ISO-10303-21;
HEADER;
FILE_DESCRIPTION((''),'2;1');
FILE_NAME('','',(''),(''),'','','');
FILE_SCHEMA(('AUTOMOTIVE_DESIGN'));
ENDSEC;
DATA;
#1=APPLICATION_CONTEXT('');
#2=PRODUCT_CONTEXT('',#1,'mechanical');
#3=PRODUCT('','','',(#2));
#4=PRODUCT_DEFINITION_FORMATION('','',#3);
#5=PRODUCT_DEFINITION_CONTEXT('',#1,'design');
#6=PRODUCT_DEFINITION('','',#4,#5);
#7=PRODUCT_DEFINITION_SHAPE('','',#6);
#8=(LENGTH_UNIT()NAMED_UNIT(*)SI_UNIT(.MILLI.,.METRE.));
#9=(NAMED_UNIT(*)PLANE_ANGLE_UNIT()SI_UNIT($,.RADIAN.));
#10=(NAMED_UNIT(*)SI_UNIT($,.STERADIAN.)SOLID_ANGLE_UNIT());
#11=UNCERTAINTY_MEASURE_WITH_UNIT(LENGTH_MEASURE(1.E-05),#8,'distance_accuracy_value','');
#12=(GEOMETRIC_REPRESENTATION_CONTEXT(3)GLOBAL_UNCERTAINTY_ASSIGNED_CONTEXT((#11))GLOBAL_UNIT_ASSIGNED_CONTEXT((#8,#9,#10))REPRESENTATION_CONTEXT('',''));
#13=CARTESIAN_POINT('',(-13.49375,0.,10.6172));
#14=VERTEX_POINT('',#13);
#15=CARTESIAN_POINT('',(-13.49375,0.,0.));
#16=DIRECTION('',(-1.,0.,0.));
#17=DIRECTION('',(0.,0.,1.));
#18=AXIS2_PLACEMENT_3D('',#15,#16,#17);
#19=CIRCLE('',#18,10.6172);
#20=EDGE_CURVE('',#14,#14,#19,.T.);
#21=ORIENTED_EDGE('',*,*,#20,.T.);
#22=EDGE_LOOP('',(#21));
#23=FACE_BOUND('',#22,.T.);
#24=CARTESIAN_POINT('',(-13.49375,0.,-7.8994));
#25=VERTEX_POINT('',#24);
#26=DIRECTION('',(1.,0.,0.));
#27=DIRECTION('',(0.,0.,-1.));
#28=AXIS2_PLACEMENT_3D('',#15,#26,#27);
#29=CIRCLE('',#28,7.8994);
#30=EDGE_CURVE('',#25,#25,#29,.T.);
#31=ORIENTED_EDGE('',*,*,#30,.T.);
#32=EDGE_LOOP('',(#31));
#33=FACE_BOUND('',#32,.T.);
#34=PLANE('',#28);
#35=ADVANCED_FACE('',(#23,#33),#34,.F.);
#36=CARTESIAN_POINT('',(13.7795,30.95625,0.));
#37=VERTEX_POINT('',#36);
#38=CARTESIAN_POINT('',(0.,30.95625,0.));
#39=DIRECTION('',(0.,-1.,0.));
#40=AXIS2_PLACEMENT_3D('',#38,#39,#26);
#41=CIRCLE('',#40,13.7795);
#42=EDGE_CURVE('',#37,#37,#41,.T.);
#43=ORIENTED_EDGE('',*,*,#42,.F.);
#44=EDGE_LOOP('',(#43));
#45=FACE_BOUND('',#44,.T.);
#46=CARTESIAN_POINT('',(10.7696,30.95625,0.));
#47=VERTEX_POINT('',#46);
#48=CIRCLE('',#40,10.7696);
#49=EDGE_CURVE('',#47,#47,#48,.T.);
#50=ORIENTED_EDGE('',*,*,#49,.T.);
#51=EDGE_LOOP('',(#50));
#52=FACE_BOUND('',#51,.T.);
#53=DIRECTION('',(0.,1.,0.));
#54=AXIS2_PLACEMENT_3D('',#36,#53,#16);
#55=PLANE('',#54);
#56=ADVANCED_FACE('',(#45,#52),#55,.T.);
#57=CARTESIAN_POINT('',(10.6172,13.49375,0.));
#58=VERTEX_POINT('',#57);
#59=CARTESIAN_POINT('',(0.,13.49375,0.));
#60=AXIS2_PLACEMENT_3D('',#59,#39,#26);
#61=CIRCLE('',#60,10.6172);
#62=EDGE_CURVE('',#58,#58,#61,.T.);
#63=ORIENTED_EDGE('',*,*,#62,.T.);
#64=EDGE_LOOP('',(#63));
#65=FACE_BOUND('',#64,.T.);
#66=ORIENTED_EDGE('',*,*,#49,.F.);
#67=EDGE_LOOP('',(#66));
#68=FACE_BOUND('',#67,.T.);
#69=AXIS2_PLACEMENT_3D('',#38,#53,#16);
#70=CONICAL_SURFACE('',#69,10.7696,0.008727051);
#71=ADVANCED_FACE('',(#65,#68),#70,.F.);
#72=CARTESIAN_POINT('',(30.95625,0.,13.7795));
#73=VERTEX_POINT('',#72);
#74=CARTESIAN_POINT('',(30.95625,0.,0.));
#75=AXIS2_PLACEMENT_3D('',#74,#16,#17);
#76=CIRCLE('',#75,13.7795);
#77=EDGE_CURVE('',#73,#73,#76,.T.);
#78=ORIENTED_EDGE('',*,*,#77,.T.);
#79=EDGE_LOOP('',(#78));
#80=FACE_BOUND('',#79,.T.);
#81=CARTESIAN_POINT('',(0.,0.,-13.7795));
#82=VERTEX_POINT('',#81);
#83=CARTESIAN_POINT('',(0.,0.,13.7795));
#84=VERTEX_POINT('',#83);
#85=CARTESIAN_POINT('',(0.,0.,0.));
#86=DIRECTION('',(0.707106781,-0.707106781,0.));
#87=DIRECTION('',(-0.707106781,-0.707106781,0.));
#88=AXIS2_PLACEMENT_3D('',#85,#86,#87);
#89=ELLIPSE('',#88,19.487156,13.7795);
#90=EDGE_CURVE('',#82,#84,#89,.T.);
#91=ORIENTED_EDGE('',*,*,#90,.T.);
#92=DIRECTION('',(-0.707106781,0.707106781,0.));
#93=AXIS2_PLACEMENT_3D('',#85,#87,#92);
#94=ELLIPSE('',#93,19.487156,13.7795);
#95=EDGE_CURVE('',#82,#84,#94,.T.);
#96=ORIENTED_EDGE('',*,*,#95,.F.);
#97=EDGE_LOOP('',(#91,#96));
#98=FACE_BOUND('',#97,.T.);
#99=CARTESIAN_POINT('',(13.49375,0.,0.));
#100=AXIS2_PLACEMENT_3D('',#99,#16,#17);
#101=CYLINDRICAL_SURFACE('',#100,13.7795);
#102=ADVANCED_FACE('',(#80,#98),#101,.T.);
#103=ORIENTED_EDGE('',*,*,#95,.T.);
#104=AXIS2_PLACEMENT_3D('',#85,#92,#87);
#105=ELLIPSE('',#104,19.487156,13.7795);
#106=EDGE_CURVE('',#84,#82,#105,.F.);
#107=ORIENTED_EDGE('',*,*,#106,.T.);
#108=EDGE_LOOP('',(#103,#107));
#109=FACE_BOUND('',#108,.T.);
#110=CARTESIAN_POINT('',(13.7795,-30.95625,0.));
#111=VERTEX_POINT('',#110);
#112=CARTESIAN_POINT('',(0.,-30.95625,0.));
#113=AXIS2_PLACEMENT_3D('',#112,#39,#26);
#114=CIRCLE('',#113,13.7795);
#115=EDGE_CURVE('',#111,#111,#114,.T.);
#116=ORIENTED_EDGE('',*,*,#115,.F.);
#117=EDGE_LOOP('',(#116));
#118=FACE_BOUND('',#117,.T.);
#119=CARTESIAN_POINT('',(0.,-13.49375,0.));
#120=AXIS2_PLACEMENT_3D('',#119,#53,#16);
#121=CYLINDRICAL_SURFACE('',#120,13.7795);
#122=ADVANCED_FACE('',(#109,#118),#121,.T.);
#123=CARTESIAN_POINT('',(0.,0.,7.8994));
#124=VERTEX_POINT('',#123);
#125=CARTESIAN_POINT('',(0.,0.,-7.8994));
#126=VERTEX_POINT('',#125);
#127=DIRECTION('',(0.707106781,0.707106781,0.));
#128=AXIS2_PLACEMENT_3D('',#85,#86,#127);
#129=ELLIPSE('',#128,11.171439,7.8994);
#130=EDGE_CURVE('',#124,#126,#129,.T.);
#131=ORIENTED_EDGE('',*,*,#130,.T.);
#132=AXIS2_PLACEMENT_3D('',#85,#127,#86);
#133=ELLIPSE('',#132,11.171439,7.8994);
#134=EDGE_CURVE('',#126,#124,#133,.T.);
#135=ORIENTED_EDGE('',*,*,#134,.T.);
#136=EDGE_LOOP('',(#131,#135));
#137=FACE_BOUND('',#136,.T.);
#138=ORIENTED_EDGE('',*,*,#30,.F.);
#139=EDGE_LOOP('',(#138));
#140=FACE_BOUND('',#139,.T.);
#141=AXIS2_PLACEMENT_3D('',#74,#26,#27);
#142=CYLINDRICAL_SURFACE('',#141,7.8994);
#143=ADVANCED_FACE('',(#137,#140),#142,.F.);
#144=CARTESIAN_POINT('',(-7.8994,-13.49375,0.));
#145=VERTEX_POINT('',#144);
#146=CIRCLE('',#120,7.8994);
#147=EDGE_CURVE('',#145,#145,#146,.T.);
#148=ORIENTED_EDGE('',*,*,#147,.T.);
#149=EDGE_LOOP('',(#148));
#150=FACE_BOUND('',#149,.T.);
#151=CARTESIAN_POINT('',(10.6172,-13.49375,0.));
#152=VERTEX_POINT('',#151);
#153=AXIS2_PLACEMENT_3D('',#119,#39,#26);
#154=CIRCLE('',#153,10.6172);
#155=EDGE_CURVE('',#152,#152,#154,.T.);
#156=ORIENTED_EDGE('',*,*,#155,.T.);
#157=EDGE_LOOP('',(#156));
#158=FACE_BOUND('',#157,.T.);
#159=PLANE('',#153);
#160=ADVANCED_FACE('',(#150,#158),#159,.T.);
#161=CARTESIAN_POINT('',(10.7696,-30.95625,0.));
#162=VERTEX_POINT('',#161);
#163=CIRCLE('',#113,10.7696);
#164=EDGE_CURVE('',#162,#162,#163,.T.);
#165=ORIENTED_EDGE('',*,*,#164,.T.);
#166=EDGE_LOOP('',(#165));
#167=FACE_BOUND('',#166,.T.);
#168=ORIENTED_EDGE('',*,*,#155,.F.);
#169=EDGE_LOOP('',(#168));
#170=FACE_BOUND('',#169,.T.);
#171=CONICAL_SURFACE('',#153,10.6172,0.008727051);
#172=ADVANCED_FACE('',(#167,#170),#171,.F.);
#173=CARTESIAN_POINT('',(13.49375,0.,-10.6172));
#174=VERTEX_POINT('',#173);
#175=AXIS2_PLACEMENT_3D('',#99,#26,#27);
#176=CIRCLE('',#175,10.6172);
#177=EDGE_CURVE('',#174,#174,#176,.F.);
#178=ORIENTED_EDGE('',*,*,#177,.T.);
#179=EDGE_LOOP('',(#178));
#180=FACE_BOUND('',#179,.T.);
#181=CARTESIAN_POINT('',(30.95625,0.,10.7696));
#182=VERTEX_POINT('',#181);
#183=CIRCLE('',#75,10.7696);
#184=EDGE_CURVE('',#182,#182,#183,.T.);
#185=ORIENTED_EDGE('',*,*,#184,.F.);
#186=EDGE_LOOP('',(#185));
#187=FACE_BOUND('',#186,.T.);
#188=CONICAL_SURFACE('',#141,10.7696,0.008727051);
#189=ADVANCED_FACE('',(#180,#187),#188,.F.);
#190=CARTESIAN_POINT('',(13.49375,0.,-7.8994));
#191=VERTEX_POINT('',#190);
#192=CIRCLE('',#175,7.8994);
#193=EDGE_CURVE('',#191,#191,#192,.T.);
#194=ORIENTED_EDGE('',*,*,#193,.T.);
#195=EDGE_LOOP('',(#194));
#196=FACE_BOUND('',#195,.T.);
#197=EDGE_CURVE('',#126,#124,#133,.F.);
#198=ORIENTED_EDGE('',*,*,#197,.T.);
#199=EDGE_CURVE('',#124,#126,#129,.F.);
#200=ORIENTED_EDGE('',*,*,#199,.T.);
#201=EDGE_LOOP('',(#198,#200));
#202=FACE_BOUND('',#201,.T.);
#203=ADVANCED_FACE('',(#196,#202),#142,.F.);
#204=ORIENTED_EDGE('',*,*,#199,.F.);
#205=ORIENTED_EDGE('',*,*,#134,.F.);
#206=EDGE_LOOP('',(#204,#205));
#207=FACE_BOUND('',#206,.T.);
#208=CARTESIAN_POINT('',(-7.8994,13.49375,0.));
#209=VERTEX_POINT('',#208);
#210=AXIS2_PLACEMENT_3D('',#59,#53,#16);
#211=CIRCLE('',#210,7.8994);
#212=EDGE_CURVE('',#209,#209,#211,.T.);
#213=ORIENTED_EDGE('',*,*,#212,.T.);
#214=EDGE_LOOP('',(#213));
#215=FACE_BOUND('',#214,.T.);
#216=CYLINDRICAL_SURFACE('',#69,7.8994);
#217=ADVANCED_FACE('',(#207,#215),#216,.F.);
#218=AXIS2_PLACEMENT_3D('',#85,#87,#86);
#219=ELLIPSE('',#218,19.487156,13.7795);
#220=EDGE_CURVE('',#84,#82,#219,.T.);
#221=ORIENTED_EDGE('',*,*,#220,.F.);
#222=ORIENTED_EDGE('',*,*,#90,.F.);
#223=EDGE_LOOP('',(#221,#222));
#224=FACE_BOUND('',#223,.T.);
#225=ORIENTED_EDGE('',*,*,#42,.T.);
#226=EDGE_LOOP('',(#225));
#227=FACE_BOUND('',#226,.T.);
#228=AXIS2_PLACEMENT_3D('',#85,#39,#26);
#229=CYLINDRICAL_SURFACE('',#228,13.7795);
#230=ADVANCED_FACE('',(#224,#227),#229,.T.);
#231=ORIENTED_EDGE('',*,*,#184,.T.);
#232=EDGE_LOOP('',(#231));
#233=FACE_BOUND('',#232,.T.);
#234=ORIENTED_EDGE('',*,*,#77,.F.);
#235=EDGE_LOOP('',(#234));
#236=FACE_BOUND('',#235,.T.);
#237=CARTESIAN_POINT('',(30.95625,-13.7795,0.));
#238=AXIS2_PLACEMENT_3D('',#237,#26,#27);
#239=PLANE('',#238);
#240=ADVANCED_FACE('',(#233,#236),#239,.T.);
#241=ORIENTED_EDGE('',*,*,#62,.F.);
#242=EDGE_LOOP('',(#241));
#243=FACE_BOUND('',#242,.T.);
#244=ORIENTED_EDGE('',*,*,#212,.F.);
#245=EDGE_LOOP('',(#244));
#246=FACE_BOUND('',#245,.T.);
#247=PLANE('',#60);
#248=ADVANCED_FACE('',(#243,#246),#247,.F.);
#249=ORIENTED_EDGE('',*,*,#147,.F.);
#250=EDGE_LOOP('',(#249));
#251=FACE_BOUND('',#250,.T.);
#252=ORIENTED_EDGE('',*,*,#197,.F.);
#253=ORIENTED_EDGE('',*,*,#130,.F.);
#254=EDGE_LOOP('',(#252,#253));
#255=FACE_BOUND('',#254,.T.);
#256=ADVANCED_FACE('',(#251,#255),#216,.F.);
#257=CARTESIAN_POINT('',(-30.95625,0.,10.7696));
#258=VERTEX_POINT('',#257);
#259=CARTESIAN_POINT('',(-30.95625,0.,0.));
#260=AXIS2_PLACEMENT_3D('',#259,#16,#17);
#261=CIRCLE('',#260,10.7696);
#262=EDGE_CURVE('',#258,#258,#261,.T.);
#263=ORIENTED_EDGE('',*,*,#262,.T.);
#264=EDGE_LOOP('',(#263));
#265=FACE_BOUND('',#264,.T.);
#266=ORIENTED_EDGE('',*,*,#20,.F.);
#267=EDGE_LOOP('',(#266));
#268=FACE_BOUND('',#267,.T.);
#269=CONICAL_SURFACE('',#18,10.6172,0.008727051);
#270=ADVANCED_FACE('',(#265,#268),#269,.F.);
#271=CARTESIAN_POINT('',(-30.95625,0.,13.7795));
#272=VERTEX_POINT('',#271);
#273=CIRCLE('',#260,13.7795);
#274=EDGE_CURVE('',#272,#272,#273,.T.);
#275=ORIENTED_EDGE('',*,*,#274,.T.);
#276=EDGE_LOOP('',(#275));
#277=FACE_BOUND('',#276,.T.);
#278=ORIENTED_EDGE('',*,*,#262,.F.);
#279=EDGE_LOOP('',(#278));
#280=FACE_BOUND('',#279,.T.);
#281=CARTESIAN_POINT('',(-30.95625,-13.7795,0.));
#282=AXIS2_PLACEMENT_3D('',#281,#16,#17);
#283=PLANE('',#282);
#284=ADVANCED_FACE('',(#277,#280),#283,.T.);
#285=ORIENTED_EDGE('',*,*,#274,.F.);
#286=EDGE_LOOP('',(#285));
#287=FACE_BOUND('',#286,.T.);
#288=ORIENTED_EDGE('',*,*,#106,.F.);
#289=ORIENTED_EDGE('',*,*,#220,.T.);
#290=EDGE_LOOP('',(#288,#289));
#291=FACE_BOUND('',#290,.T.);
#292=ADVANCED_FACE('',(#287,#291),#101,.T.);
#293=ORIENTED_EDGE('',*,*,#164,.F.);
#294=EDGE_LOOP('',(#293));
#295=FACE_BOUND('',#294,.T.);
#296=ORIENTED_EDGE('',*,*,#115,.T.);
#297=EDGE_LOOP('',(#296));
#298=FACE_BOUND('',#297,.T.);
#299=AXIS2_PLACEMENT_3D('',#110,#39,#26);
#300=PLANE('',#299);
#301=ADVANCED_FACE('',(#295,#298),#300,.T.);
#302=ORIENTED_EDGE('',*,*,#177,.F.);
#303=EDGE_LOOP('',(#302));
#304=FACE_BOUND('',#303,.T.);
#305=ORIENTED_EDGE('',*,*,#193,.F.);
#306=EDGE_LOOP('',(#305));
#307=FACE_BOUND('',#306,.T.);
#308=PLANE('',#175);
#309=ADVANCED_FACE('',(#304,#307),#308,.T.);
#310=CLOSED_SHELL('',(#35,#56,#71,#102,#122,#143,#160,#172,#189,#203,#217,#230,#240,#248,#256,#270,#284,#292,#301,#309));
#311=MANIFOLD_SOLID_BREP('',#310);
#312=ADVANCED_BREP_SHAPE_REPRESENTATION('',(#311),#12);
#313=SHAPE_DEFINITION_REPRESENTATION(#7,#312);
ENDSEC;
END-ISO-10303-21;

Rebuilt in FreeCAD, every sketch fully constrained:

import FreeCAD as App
import Part
import Sketcher
Q = App.Units.Quantity


def add_polygon(sketch, points):
    """Adds a closed chain of lines whose ends are joined by coincident constraints."""
    first, n = sketch.GeometryCount, len(points)
    for a, b in zip(points, points[1:] + points[:1]):
        sketch.addGeometry(Part.LineSegment(App.Vector(*a, 0), App.Vector(*b, 0)), False)
    for i in range(n):
        sketch.addConstraint(Sketcher.Constraint("Coincident", first + i, 2, first + (i + 1) % n, 1))

doc = App.newDocument("Part")
body = doc.addObject("PartDesign::Body", "Body")
body.AllowCompound = True

# Sketch on XY plane
sketch1 = doc.addObject("Sketcher::SketchObject", "Sketch")
body.addObject(sketch1)
sketch1.AttachmentSupport = (doc.XY_Plane, [""])
sketch1.MapMode = "FlatFace"
add_polygon(sketch1, [(-31, -13.8), (-13.5, -13.8), (-13.5, -10.6), (-31, -10.8)])  # lines 0-3
add_polygon(sketch1, [(31, -10.8), (13.5, -10.6), (13.5, -13.8), (31, -13.8)])  # lines 4-7
sketch1.addConstraint([
    Sketcher.Constraint("Horizontal", 0),
    Sketcher.Constraint("Vertical", 1),
    Sketcher.Constraint("Vertical", 3),
    Sketcher.Constraint("Vertical", 5),
    Sketcher.Constraint("Horizontal", 6),
    Sketcher.Constraint("Vertical", 7),
    Sketcher.Constraint("Symmetric", 1, 2, 4, 2, -2),
    Sketcher.Constraint("Symmetric", 3, 2, 6, 2, -2),
    Sketcher.Constraint("Horizontal", 2, 2, 7, 2),
    Sketcher.Constraint("DistanceX", 0, 1, 0, 2, Q("0.6875 in")),
    Sketcher.Constraint("DistanceX", 2, 2, 4, 2, Q("1.75 in")),
    Sketcher.Constraint("DistanceY", 1, 1, 1, 2, Q("0.1245 in")),
    Sketcher.Constraint("DistanceY", 3, 2, 3, 1, Q("0.1185 in")),
    Sketcher.Constraint("DistanceY", 1, 2, -1, 1, Q("0.418 in")),
])
revolution = doc.addObject("PartDesign::Revolution", "Revolution")
body.addObject(revolution)
revolution.Profile = sketch1
revolution.ReferenceAxis = (sketch1, ["H_Axis"])
revolution.Angle = 360
body2 = doc.addObject("PartDesign::Body", "Body001")
body2.AllowCompound = True

# Sketch on XY plane
sketch2 = doc.addObject("Sketcher::SketchObject", "Sketch001")
body2.addObject(sketch2)
sketch2.AttachmentSupport = (doc.getObject("XY_Plane001"), [""])
sketch2.MapMode = "FlatFace"
add_polygon(sketch2, [(10.8, 31), (10.6, 13.5), (13.8, 13.5), (13.8, 31)])  # lines 0-3
add_polygon(sketch2, [(10.8, -31), (13.8, -31), (13.8, -13.5), (10.6, -13.5)])  # lines 4-7
sketch2.addConstraint([
    Sketcher.Constraint("Horizontal", 1),
    Sketcher.Constraint("Vertical", 2),
    Sketcher.Constraint("Horizontal", 3),
    Sketcher.Constraint("Horizontal", 4),
    Sketcher.Constraint("Vertical", 5),
    Sketcher.Constraint("Horizontal", 6),
    Sketcher.Constraint("Symmetric", 2, 2, 4, 2, -1),
    Sketcher.Constraint("Symmetric", 0, 2, 6, 2, -1),
    Sketcher.Constraint("Vertical", 3, 2, 7, 2),
    Sketcher.Constraint("DistanceY", 2, 1, 2, 2, Q("0.6875 in")),
    Sketcher.Constraint("DistanceY", 4, 2, 1, 2, Q("1.75 in")),
    Sketcher.Constraint("DistanceX", 1, 1, 1, 2, Q("0.1245 in")),
    Sketcher.Constraint("DistanceX", 3, 2, 3, 1, Q("0.1185 in")),
    Sketcher.Constraint("DistanceX", -1, 1, 0, 2, Q("0.418 in")),
])
revolution2 = doc.addObject("PartDesign::Revolution", "Revolution001")
body2.addObject(revolution2)
revolution2.Profile = sketch2
revolution2.ReferenceAxis = (sketch2, ["V_Axis"])
revolution2.Angle = 360
doc.recompute()

boolean = doc.addObject("PartDesign::Boolean", "Boolean")
body.addObject(boolean)
boolean.Type = "Fuse"
boolean.addObjects([body2])

# Sketch on YZ plane
sketch3 = doc.addObject("Sketcher::SketchObject", "Sketch002")
body.addObject(sketch3)
sketch3.AttachmentSupport = (doc.YZ_Plane, [""])
sketch3.MapMode = "FlatFace"
sketch3.AttachmentOffset = App.Placement(App.Vector(0, 0, -0.53125 * 25.4), App.Rotation())
sketch3.addGeometry(Part.Circle(App.Vector(0, 0, 0), App.Vector(0, 0, 1), 14), False)
sketch3.addConstraint([
    Sketcher.Constraint("Coincident", 0, 3, -1, 1),
    Sketcher.Constraint("Diameter", 0, Q("1.085 in")),
])
pad1 = doc.addObject("PartDesign::Pad", "Pad")
body.addObject(pad1)
pad1.Profile = sketch3
pad1.Length = Q("1.75 in")

# Sketch on XZ plane
sketch4 = doc.addObject("Sketcher::SketchObject", "Sketch003")
body.addObject(sketch4)
sketch4.AttachmentSupport = (doc.XZ_Plane, [""])
sketch4.MapMode = "FlatFace"
sketch4.AttachmentOffset = App.Placement(App.Vector(0, 0, -0.53125 * 25.4), App.Rotation())
sketch4.addGeometry(Part.Circle(App.Vector(0, 0, 0), App.Vector(0, 0, 1), 14), False)
sketch4.addConstraint([
    Sketcher.Constraint("Coincident", 0, 3, -1, 1),
    Sketcher.Constraint("Diameter", 0, Q("1.085 in")),
])
pad2 = doc.addObject("PartDesign::Pad", "Pad001")
body.addObject(pad2)
pad2.Profile = sketch4
pad2.Length = Q("1.75 in")

# Sketch on XY plane
sketch5 = doc.addObject("Sketcher::SketchObject", "Sketch004")
body.addObject(sketch5)
sketch5.AttachmentSupport = (doc.XY_Plane, [""])
sketch5.MapMode = "FlatFace"
add_polygon(sketch5, [(-31, -10.8), (-13.5, -10.6), (-13.5, -7.9), (13.5, -7.9), (13.5, -10.6), (31, -10.8), (31, 0), (-31, 0)])  # lines 0-7
sketch5.addConstraint([
    Sketcher.Constraint("Vertical", 1),
    Sketcher.Constraint("Horizontal", 2),
    Sketcher.Constraint("Vertical", 3),
    Sketcher.Constraint("Vertical", 5),
    Sketcher.Constraint("Horizontal", 6),
    Sketcher.Constraint("Vertical", 7),
    Sketcher.Constraint("Symmetric", 5, 2, 6, 2, -1, 1),
    Sketcher.Constraint("Symmetric", 0, 2, 3, 2, -2),
    Sketcher.Constraint("Horizontal", 4, 2, 7, 2),
    Sketcher.Constraint("DistanceX", 2, 1, 2, 2, Q("1.0625 in")),
    Sketcher.Constraint("DistanceX", 6, 2, 6, 1, Q("2.4375 in")),
    Sketcher.Constraint("DistanceY", 1, 1, 1, 2, Q("0.107 in")),
    Sketcher.Constraint("DistanceY", 5, 1, 5, 2, Q("0.424 in")),
    Sketcher.Constraint("DistanceY", 0, 2, -1, 1, Q("0.418 in")),
])
groove = doc.addObject("PartDesign::Groove", "Groove")
body.addObject(groove)
groove.Profile = sketch5
groove.ReferenceAxis = (sketch5, ["H_Axis"])
groove.Angle = 360

# Sketch on XY plane
sketch6 = doc.addObject("Sketcher::SketchObject", "Sketch005")
body.addObject(sketch6)
sketch6.AttachmentSupport = (doc.XY_Plane, [""])
sketch6.MapMode = "FlatFace"
add_polygon(sketch6, [(10.6, 13.5), (10.8, 31), (0, 31), (0, -31), (10.8, -31), (10.6, -13.5), (7.9, -13.5), (7.9, 13.5)])  # lines 0-7
sketch6.addConstraint([
    Sketcher.Constraint("Horizontal", 1),
    Sketcher.Constraint("Vertical", 2),
    Sketcher.Constraint("Horizontal", 3),
    Sketcher.Constraint("Horizontal", 5),
    Sketcher.Constraint("Vertical", 6),
    Sketcher.Constraint("Horizontal", 7),
    Sketcher.Constraint("Symmetric", 1, 2, 2, 2, -1, 1),
    Sketcher.Constraint("Symmetric", 4, 2, 7, 2, -1),
    Sketcher.Constraint("Vertical", 0, 2, 3, 2),
    Sketcher.Constraint("DistanceX", 1, 2, 1, 1, Q("0.424 in")),
    Sketcher.Constraint("DistanceX", 5, 2, 5, 1, Q("0.107 in")),
    Sketcher.Constraint("DistanceY", 2, 2, 2, 1, Q("2.4375 in")),
    Sketcher.Constraint("DistanceY", 6, 1, 6, 2, Q("1.0625 in")),
    Sketcher.Constraint("DistanceX", -1, 1, 4, 2, Q("0.418 in")),
])
groove2 = doc.addObject("PartDesign::Groove", "Groove001")
body.addObject(groove2)
groove2.Profile = sketch6
groove2.ReferenceAxis = (sketch6, ["V_Axis"])
groove2.Angle = 360

doc.recompute()
